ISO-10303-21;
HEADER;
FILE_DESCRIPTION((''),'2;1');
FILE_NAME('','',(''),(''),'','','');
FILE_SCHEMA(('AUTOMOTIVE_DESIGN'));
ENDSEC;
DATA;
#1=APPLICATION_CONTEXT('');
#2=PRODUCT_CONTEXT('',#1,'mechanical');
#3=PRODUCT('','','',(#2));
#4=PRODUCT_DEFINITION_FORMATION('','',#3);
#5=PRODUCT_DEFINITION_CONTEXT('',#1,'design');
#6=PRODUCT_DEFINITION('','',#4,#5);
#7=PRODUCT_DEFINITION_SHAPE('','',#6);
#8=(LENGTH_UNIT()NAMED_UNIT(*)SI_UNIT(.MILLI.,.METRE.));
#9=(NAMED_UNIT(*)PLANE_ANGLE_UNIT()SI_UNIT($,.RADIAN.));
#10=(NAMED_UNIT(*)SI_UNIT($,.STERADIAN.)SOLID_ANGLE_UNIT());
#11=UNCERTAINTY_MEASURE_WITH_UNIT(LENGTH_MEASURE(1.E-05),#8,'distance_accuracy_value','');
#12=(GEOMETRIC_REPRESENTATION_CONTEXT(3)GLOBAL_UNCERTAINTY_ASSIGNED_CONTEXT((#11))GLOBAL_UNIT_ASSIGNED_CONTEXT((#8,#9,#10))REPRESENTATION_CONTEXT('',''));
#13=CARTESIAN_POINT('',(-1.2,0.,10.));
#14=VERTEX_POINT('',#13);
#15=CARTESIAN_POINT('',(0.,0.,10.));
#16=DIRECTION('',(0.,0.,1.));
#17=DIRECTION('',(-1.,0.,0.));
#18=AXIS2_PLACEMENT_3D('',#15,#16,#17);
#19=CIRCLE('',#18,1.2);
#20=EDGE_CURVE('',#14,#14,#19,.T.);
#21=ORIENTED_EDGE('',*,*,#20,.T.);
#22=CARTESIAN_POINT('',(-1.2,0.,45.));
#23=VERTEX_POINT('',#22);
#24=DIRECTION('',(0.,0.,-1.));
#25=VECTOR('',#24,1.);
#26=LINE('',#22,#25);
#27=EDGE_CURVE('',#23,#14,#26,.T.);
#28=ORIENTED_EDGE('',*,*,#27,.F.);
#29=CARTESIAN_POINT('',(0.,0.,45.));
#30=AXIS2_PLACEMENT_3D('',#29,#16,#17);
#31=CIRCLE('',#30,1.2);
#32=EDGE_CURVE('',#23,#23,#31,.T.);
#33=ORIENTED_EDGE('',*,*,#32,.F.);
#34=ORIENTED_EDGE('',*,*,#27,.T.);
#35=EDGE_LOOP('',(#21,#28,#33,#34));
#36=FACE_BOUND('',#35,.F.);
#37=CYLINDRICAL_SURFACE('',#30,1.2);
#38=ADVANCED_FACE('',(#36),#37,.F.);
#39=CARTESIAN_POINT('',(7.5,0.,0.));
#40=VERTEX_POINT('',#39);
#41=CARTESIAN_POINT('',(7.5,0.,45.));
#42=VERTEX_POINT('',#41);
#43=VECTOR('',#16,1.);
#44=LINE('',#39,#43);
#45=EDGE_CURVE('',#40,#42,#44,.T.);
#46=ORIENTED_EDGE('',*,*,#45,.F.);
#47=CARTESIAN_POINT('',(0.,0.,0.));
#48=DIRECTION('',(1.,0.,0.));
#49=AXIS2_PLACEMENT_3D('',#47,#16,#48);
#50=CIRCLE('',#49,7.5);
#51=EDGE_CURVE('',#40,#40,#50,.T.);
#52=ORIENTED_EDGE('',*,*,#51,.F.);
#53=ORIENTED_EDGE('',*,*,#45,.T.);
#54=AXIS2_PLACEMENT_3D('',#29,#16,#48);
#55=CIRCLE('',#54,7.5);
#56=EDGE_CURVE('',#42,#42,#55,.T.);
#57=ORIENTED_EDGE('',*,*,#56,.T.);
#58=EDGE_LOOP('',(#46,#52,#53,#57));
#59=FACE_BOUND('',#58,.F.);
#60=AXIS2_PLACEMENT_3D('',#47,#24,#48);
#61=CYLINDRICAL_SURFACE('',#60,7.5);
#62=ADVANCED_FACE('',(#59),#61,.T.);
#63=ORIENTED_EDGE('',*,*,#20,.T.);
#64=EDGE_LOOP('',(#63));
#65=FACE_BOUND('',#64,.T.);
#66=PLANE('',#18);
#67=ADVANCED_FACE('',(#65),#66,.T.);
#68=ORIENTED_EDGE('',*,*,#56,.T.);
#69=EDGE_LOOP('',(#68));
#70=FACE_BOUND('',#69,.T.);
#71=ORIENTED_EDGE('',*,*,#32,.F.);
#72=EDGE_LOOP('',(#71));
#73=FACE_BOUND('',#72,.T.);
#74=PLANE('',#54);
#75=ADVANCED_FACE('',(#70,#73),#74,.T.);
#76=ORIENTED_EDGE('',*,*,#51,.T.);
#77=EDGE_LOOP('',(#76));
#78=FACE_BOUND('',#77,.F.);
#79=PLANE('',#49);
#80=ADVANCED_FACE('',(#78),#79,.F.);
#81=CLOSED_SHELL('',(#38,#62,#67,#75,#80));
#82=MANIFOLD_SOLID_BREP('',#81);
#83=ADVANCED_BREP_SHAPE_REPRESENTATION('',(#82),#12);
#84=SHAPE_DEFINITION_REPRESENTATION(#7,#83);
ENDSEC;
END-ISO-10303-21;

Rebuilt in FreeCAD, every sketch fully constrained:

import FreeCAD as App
import Part
import Sketcher
from FreeCAD import Vector

doc = App.newDocument("Part")
body = doc.addObject("PartDesign::Body", "Body")

sketch1 = doc.addObject("Sketcher::SketchObject", "Sketch")
body.addObject(sketch1)
sketch1.AttachmentSupport = (doc.XY_Plane, [""])
sketch1.MapMode = "FlatFace"
sketch1.addGeometry(Part.Circle(Vector(0, 0, 0), Vector(0, 0, 1), 8), False)
sketch1.addConstraint([
    Sketcher.Constraint("Coincident", 0, 3, -1, 1),
    Sketcher.Constraint("Diameter", 0, 15.0),
])
pad1 = doc.addObject("PartDesign::Pad", "Pad")
body.addObject(pad1)
pad1.Profile = sketch1
pad1.Length = 45

sketch2 = doc.addObject("Sketcher::SketchObject", "Sketch001")
body.addObject(sketch2)
sketch2.AttachmentSupport = (doc.XY_Plane, [""])
sketch2.MapMode = "FlatFace"
sketch2.AttachmentOffset = App.Placement(Vector(0, 0, 45), App.Rotation())
sketch2.addGeometry(Part.Circle(Vector(0, 0, 0), Vector(0, 0, 1), 1.2), False)
sketch2.addConstraint([
    Sketcher.Constraint("Coincident", 0, 3, -1, 1),
    Sketcher.Constraint("Diameter", 0, 2.4),
])
pocket1 = doc.addObject("PartDesign::Pocket", "Pocket")
body.addObject(pocket1)
pocket1.Profile = sketch2
pocket1.Length = 35

doc.recompute()
